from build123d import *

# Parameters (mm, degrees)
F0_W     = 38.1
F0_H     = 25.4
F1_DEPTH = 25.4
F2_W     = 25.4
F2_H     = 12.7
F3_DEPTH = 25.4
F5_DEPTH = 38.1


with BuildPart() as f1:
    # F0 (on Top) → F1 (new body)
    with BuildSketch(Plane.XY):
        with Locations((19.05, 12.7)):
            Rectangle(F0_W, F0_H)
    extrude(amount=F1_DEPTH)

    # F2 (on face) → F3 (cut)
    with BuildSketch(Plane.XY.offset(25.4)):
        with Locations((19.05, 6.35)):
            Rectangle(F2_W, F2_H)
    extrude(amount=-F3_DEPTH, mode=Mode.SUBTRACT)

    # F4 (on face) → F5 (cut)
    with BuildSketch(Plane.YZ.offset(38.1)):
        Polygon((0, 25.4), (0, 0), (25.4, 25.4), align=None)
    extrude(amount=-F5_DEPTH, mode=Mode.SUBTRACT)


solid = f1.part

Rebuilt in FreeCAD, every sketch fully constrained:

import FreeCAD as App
import Part
import Sketcher
Q = App.Units.Quantity


def add_polygon(sketch, points):
    """Adds a closed chain of lines whose ends are joined by coincident constraints."""
    first, n = sketch.GeometryCount, len(points)
    for a, b in zip(points, points[1:] + points[:1]):
        sketch.addGeometry(Part.LineSegment(App.Vector(*a, 0), App.Vector(*b, 0)), False)
    for i in range(n):
        sketch.addConstraint(Sketcher.Constraint("Coincident", first + i, 2, first + (i + 1) % n, 1))

doc = App.newDocument("Part")
params = doc.addObject("Spreadsheet::Sheet", "Params")
for row, (alias, value) in enumerate([
    ("sketch1_height", "1 in"),
    ("sketch1_width", "1.5 in"),
    ("pad1_length", "1 in"),
    ("sketch2_width", "1 in"),
    ("sketch2_height", "0.5 in"),
    ("pocket1_length", "1 in"),
    ("sketch3_width", "1 in"),
    ("pocket2_length", "1.5 in"),
], start=1):
    params.set(f"A{row}", alias)
    params.set(f"B{row}", "=" + value)
    params.setAlias(f"B{row}", alias)

body = doc.addObject("PartDesign::Body", "Body")

# Sketch on XY plane
sketch1 = body.newObject("Sketcher::SketchObject", "Sketch")
sketch1.AttachmentSupport = (doc.getObject("XY_Plane"), [""])
sketch1.MapMode = "FlatFace"
add_polygon(sketch1, [(0, 25), (0, 0), (38, 0), (38, 25)])  # lines 0-3
sketch1.addConstraint(Sketcher.Constraint("Vertical", 0))
sketch1.addConstraint(Sketcher.Constraint("Horizontal", 1))
sketch1.addConstraint(Sketcher.Constraint("Vertical", 2))
sketch1.addConstraint(Sketcher.Constraint("Horizontal", 3))
sketch1.addConstraint(Sketcher.Constraint("Coincident", 0, 2, -1, 1))
sketch1.addConstraint(Sketcher.Constraint("DistanceY", 0, 2, 0, 1, Q("1 in")))
sketch1.addConstraint(Sketcher.Constraint("DistanceX", 1, 1, 1, 2, Q("1.5 in")))
sketch1.setExpression("Constraints[9]", "Params.sketch1_height")
sketch1.setExpression("Constraints[10]", "Params.sketch1_width")
pad1 = body.newObject("PartDesign::Pad", "Pad")
pad1.Profile = sketch1
pad1.setExpression("Length", "Params.pad1_length")

# Sketch on XY plane
sketch2 = body.newObject("Sketcher::SketchObject", "Sketch001")
sketch2.AttachmentSupport = (doc.getObject("XY_Plane"), [""])
sketch2.MapMode = "FlatFace"
sketch2.AttachmentOffset = App.Placement(App.Vector(0, 0, 1 * 25.4), App.Rotation())
add_polygon(sketch2, [(6, 13), (6, 0), (32, 0), (32, 13)])  # lines 0-3
sketch2.addConstraint(Sketcher.Constraint("Vertical", 0))
sketch2.addConstraint(Sketcher.Constraint("Horizontal", 1))
sketch2.addConstraint(Sketcher.Constraint("Vertical", 2))
sketch2.addConstraint(Sketcher.Constraint("Horizontal", 3))
sketch2.addConstraint(Sketcher.Constraint("PointOnObject", 0, 2, -1))
sketch2.addConstraint(Sketcher.Constraint("DistanceX", 1, 1, 1, 2, Q("1 in")))
sketch2.addConstraint(Sketcher.Constraint("DistanceY", 0, 2, 0, 1, Q("0.5 in")))
sketch2.addConstraint(Sketcher.Constraint("DistanceX", -1, 1, 0, 2, Q("0.25 in")))
sketch2.setExpression("Constraints[9]", "Params.sketch2_width")
sketch2.setExpression("Constraints[10]", "Params.sketch2_height")
pocket1 = body.newObject("PartDesign::Pocket", "Pocket")
pocket1.Profile = sketch2
pocket1.setExpression("Length", "Params.pocket1_length")

# Sketch on YZ plane
sketch3 = body.newObject("Sketcher::SketchObject", "Sketch002")
sketch3.AttachmentSupport = (doc.getObject("YZ_Plane"), [""])
sketch3.MapMode = "FlatFace"
sketch3.AttachmentOffset = App.Placement(App.Vector(0, 0, 1.5 * 25.4), App.Rotation())
add_polygon(sketch3, [(0, 25), (0, 0), (25, 25)])  # lines 0-2
sketch3.addConstraint(Sketcher.Constraint("Vertical", 0))
sketch3.addConstraint(Sketcher.Constraint("Horizontal", 2))
sketch3.addConstraint(Sketcher.Constraint("Coincident", 0, 2, -1, 1))
sketch3.addConstraint(Sketcher.Constraint("Equal", 2, 0))
sketch3.addConstraint(Sketcher.Constraint("DistanceX", 2, 2, 2, 1, Q("1 in")))
sketch3.setExpression("Constraints[7]", "Params.sketch3_width")
pocket2 = body.newObject("PartDesign::Pocket", "Pocket001")
pocket2.Profile = sketch3
pocket2.setExpression("Length", "Params.pocket2_length")

doc.recompute()
